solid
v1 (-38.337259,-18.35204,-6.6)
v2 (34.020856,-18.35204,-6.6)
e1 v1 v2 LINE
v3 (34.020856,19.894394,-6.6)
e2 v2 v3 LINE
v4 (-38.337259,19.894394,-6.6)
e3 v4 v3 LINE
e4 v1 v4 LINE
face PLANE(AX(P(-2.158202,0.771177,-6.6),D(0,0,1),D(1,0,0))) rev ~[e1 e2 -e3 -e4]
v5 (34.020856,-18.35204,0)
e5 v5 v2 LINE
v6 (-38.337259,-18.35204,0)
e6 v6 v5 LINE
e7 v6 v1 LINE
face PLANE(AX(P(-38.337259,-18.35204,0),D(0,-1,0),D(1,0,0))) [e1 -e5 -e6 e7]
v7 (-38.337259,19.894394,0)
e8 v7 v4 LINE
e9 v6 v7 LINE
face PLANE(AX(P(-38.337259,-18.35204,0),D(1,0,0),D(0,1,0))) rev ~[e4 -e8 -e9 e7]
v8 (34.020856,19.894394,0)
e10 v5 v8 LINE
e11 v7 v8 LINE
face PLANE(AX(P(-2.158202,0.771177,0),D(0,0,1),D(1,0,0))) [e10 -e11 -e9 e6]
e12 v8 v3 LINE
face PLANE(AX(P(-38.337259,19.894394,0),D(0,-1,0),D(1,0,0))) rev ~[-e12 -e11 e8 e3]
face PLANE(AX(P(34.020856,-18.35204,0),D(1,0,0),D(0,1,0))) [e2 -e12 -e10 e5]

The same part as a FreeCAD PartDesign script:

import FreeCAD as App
import Part
import Sketcher

doc = App.newDocument("Part")
params = doc.addObject("Spreadsheet::Sheet", "Params")
for row, (alias, value) in enumerate([
    ("pad1_length", "6.6 mm"),
], start=1):
    params.set(f"A{row}", alias)
    params.set(f"B{row}", "=" + value)
    params.setAlias(f"B{row}", alias)

body = doc.addObject("PartDesign::Body", "Body")

sketch1 = doc.addObject("Sketcher::SketchObject", "Sketch")
body.addObject(sketch1)
sketch1.AttachmentSupport = (doc.XY_Plane, [""])
sketch1.MapMode = "FlatFace"
sketch1.addGeometry([
    Part.LineSegment(App.Vector(-38, 20, 0), App.Vector(-38, -18, 0)),
    Part.LineSegment(App.Vector(-38, -18, 0), App.Vector(34, -18, 0)),
    Part.LineSegment(App.Vector(34, -18, 0), App.Vector(34, 20, 0)),
    Part.LineSegment(App.Vector(34, 20, 0), App.Vector(-38, 20, 0)),
], False)
sketch1.addConstraint([
    Sketcher.Constraint("Coincident", 0, 2, 1, 1),
    Sketcher.Constraint("Coincident", 1, 2, 2, 1),
    Sketcher.Constraint("Coincident", 2, 2, 3, 1),
    Sketcher.Constraint("Coincident", 3, 2, 0, 1),
    Sketcher.Constraint("Vertical", 0),
    Sketcher.Constraint("Horizontal", 1),
    Sketcher.Constraint("Vertical", 2),
    Sketcher.Constraint("Horizontal", 3),
    Sketcher.Constraint("DistanceX", 1, 1, 1, 2, 72.358115),
    Sketcher.Constraint("DistanceY", 0, 2, 0, 1, 38.246434),
    Sketcher.Constraint("DistanceX", 0, 2, -1, 1, 38.337259),
    Sketcher.Constraint("DistanceY", 0, 2, -1, 1, 18.35204),
])
pad1 = doc.addObject("PartDesign::Pad", "Pad")
body.addObject(pad1)
pad1.Profile = sketch1
pad1.setExpression("Length", "Params.pad1_length")
pad1.Reversed = True

doc.recompute()
